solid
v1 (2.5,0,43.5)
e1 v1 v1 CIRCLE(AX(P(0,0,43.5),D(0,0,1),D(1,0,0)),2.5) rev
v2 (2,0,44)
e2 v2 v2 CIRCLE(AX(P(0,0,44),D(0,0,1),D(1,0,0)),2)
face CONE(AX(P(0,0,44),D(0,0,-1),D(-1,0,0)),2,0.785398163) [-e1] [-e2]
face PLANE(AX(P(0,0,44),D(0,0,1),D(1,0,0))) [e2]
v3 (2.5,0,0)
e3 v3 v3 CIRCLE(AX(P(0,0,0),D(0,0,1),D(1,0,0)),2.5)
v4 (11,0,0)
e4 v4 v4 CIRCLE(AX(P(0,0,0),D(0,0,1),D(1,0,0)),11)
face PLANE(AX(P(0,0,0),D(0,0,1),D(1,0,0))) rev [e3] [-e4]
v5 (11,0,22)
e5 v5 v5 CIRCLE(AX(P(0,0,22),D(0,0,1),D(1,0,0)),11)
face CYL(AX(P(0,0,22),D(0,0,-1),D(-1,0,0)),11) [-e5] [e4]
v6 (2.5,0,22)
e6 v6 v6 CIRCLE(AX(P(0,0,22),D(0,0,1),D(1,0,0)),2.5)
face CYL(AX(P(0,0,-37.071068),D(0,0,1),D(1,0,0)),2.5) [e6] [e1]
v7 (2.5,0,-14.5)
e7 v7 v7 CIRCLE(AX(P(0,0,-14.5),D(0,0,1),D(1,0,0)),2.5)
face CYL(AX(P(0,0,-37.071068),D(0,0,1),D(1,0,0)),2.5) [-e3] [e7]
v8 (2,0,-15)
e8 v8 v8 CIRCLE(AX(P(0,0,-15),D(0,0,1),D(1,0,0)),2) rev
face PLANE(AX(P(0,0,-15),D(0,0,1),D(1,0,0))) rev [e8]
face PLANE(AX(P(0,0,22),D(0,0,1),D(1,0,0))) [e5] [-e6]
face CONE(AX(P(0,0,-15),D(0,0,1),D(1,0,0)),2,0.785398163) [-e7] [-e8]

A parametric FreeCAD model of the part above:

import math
import FreeCAD as App
import Part
import Sketcher
from FreeCAD import Vector


def edges_at(feature, points):
    """Names of the edges that pass closest to the given points."""
    edges = feature.Shape.Edges
    near = lambda p: min(range(len(edges)), key=lambda i: edges[i].distToShape(Part.Vertex(*p))[0])
    return sorted({f"Edge{near(p) + 1}" for p in points})

doc = App.newDocument("Part")
body = doc.addObject("PartDesign::Body", "Body")

# Sketch on XY plane
sketch1 = body.newObject("Sketcher::SketchObject", "Sketch")
sketch1.AttachmentSupport = (doc.getObject("XY_Plane"), [""])
sketch1.MapMode = "FlatFace"
sketch1.addGeometry(Part.Circle(Vector(0, 0, 0), Vector(0, 0, 1), 11), False)
sketch1.addConstraint([
    Sketcher.Constraint("Coincident", 0, 3, -1, 1),
    Sketcher.Constraint("Diameter", 0, 22.0),
])
pad1 = body.newObject("PartDesign::Pad", "Pad")
pad1.Profile = sketch1
pad1.Length = 22

# Sketch on XY plane
sketch2 = body.newObject("Sketcher::SketchObject", "Sketch001")
sketch2.AttachmentSupport = (doc.getObject("XY_Plane"), [""])
sketch2.MapMode = "FlatFace"
sketch2.AttachmentOffset = App.Placement(Vector(0, 0, -15), App.Rotation())
sketch2.addGeometry([
    Part.ArcOfCircle(Part.Circle(Vector(0, 0, 0), Vector(0, 0, 1), 2.5), math.radians(53), math.radians(127)),
    Part.ArcOfCircle(Part.Circle(Vector(0, 0, 0), Vector(0, 0, 1), 2.5), math.radians(127), math.radians(360)),
    Part.ArcOfCircle(Part.Circle(Vector(0, 0, 0), Vector(0, 0, 1), 2.5), math.radians(0), math.radians(53)),
], False)
sketch2.addConstraint([
    Sketcher.Constraint("Tangent", 0, 2, 1, 1),
    Sketcher.Constraint("Tangent", 1, 2, 2, 1),
    Sketcher.Constraint("Tangent", 2, 2, 0, 1),
    Sketcher.Constraint("Coincident", 0, 3, -1, 1),
    Sketcher.Constraint("PointOnObject", 1, 2, -1),
    Sketcher.Constraint("Horizontal", 0, 2, 2, 2),
    Sketcher.Constraint("Radius", 0, 2.5),
    Sketcher.Constraint("DistanceY", -1, 1, 0, 2, 2.0),
])
pad2 = body.newObject("PartDesign::Pad", "Pad001")
pad2.Profile = sketch2
pad2.Length = 59
doc.recompute()

chamfer = body.newObject("PartDesign::Chamfer", "Chamfer")
chamfer.Base = (pad2, edges_at(pad2, [(-1.118, -2.236, -15), (-1.118, -2.236, 44)]))
chamfer.Size = 0.5

doc.recompute()
